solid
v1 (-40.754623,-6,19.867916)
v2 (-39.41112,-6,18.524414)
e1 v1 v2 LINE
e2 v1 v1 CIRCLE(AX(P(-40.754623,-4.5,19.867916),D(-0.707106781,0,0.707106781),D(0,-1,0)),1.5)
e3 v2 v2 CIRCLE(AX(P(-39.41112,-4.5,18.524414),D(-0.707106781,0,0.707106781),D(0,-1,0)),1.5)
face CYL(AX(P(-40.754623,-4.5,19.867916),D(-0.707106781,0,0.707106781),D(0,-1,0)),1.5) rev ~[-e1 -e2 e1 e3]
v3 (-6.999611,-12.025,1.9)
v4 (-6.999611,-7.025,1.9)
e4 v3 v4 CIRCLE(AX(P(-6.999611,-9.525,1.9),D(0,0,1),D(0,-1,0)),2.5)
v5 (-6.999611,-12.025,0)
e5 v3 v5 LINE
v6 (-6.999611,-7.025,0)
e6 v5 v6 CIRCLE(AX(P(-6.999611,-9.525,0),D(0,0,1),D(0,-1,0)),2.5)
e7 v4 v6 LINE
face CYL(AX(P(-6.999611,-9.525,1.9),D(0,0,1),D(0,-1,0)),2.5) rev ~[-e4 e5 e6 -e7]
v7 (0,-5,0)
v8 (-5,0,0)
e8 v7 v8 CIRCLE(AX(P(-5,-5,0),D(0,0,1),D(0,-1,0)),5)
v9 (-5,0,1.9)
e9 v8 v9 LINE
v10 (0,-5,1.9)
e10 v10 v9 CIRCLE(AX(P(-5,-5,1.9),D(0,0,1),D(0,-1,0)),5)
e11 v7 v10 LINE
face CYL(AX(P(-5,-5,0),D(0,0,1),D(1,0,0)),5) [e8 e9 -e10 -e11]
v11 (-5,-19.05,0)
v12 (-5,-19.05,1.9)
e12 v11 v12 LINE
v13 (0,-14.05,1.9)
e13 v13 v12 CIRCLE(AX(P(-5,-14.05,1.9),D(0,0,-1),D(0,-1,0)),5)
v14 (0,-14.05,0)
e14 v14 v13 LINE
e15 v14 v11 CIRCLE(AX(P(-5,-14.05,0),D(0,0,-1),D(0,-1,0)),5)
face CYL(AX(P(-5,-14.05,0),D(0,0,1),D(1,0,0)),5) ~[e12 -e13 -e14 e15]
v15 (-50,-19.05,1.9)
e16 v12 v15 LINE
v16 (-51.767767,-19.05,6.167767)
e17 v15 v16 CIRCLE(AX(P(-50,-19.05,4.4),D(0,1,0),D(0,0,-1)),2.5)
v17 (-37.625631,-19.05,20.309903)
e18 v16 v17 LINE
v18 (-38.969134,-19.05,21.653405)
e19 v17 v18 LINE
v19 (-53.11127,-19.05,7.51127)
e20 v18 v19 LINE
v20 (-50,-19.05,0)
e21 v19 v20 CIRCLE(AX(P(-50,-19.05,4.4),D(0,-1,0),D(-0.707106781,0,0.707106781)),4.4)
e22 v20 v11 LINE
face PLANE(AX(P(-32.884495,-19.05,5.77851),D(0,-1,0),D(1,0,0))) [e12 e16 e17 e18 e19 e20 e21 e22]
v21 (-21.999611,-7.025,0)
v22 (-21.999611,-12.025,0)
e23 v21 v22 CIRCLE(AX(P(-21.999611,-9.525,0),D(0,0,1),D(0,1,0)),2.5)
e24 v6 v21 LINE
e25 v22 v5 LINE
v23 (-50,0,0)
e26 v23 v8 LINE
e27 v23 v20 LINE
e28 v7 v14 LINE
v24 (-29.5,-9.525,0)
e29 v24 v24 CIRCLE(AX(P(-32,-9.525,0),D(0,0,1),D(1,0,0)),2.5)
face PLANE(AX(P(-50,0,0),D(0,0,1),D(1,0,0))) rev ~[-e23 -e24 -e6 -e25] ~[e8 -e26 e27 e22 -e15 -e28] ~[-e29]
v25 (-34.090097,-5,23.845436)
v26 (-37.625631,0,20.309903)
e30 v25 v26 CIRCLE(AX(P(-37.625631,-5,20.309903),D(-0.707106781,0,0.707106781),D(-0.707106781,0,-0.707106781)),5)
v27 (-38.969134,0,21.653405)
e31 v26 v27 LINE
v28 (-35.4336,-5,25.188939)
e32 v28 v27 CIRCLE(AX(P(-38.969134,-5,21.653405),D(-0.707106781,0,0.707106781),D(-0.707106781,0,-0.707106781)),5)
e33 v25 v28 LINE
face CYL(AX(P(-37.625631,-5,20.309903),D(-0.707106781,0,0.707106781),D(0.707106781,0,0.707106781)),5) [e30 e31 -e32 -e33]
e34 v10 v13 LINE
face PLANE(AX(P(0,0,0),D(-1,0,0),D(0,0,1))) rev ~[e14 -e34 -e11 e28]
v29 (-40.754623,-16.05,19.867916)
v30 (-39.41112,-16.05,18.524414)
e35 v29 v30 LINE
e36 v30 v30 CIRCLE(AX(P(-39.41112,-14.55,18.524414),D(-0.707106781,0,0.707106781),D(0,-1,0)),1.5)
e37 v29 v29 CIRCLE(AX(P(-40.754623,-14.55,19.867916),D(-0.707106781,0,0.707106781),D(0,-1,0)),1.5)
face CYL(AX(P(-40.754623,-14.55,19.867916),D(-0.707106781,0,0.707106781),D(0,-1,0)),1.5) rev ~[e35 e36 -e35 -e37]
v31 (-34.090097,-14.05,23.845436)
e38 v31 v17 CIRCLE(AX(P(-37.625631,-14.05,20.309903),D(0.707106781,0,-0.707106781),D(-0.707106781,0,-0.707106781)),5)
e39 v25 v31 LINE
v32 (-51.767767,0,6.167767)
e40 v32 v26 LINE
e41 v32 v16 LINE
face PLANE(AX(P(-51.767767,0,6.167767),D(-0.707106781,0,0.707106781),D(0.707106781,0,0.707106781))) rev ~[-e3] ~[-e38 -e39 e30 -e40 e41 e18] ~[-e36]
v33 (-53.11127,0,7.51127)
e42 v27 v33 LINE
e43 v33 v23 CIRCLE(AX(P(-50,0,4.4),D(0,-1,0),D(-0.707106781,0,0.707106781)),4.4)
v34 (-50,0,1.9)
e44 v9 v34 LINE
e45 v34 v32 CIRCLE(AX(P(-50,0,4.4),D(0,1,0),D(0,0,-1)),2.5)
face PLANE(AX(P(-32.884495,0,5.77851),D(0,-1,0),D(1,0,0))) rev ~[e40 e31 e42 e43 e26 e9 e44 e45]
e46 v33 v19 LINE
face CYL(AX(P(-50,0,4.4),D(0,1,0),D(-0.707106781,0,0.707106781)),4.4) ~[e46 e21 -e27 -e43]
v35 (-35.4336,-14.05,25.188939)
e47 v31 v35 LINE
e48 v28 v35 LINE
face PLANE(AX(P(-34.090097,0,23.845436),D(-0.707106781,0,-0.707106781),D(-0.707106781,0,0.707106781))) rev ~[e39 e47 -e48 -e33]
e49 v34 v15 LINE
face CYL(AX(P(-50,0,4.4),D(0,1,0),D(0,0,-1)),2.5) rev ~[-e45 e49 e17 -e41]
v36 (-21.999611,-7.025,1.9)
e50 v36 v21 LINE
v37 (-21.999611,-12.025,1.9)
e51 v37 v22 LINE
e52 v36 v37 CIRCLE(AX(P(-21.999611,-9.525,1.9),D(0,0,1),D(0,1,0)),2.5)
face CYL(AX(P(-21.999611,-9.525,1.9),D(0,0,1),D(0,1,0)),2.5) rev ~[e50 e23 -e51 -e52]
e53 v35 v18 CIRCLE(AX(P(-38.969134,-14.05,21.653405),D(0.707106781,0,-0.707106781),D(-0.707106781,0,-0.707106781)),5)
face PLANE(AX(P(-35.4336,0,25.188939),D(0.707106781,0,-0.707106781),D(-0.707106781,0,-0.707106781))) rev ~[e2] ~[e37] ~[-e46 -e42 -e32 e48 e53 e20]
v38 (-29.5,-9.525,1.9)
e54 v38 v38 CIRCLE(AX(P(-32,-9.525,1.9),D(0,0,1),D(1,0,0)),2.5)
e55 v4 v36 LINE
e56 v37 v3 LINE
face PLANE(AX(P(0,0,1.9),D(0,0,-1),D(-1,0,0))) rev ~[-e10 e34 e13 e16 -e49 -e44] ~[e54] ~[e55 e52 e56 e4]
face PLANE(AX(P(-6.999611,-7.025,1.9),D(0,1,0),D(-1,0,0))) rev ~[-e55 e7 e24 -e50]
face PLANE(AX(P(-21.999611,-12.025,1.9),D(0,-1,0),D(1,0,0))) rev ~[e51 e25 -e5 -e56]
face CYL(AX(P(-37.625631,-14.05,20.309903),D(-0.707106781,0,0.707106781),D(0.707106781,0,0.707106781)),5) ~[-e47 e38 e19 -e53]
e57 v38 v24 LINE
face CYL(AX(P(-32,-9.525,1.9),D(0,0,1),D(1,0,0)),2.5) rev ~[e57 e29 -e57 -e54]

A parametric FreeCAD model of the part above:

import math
import FreeCAD as App
import Part
import Sketcher
from FreeCAD import Vector
Q = App.Units.Quantity


def edges_at(feature, points):
    """Names of the edges that pass closest to the given points."""
    edges = feature.Shape.Edges
    near = lambda p: min(range(len(edges)), key=lambda i: edges[i].distToShape(Part.Vertex(*p))[0])
    return sorted({f"Edge{near(p) + 1}" for p in points})

doc = App.newDocument("Part")
params = doc.addObject("Spreadsheet::Sheet", "Params")
for row, (alias, value) in enumerate([
    ("sketch1_radius", "2.5 mm"),
    ("sketch1_radius2", "4.4 mm"),
    ("sketch1_width", "50 mm"),
    ("sketch1_length", "25 mm"),
    ("pad1_length", "19.05 mm"),
    ("fillet_radius", "5 mm"),
    ("sketch2_diameter", "3 mm"),
    ("pocket1_length", "1.9 mm"),
    ("sketch3_diameter", "5 mm"),
    ("sketch3_width", "15 mm"),
], start=1):
    params.set(f"A{row}", alias)
    params.set(f"B{row}", "=" + value)
    params.setAlias(f"B{row}", alias)

body = doc.addObject("PartDesign::Body", "Body")

# Sketch on XZ plane
sketch1 = doc.addObject("Sketcher::SketchObject", "Sketch")
body.addObject(sketch1)
sketch1.AttachmentSupport = (doc.XZ_Plane, [""])
sketch1.MapMode = "FlatFace"
sketch1.addGeometry([
    Part.LineSegment(Vector(-50, 0, 0), Vector(0, 0, 0)),  # 0
    Part.LineSegment(Vector(0, 0, 0), Vector(0, 1.9, 0)),  # 1
    Part.LineSegment(Vector(0, 1.9, 0), Vector(-50, 1.9, 0)),  # 2
    Part.ArcOfCircle(Part.Circle(Vector(-50, 4.4, 0), Vector(0, 0, 1), 2.5), math.radians(135), math.radians(270)),  # 3
    Part.LineSegment(Vector(-51.8, 6.2, 0), Vector(-34.1, 23.8, 0)),  # 4
    Part.LineSegment(Vector(-34.1, 23.8, 0), Vector(-35.4, 25.2, 0)),  # 5
    Part.LineSegment(Vector(-35.4, 25.2, 0), Vector(-53.1, 7.5, 0)),  # 6
    Part.ArcOfCircle(Part.Circle(Vector(-50, 4.4, 0), Vector(0, 0, 1), 4.4), math.radians(135), math.radians(270)),  # 7
], False)
sketch1.addConstraint([
    Sketcher.Constraint("Coincident", 0, 2, 1, 1),
    Sketcher.Constraint("Coincident", 1, 2, 2, 1),
    Sketcher.Constraint("Tangent", 2, 2, 3, 2),
    Sketcher.Constraint("Tangent", 3, 1, 4, 1),
    Sketcher.Constraint("Coincident", 4, 2, 5, 1),
    Sketcher.Constraint("Coincident", 5, 2, 6, 1),
    Sketcher.Constraint("Tangent", 6, 2, 7, 1),
    Sketcher.Constraint("Tangent", 7, 2, 0, 1),
    Sketcher.Constraint("Horizontal", 0),
    Sketcher.Constraint("Vertical", 1),
    Sketcher.Constraint("Horizontal", 2),
    Sketcher.Constraint("Coincident", 0, 2, -1, 1),
    Sketcher.Constraint("Coincident", 7, 3, 3, 3),
    Sketcher.Constraint("Perpendicular", 4, 5),
    Sketcher.Constraint("Perpendicular", 5, 6),
    Sketcher.Constraint("Radius", 3, 2.5),
    Sketcher.Constraint("Radius", 7, 4.4),
    Sketcher.Constraint("DistanceX", 0, 1, 0, 2, 50.0),
    Sketcher.Constraint("Angle", 4, Q("45 deg")),
    Sketcher.Constraint("Distance", 4, 25.0),
])
sketch1.setExpression("Constraints[15]", "Params.sketch1_radius")
sketch1.setExpression("Constraints[16]", "Params.sketch1_radius2")
sketch1.setExpression("Constraints[17]", "Params.sketch1_width")
sketch1.setExpression("Constraints[19]", "Params.sketch1_length")
pad1 = doc.addObject("PartDesign::Pad", "Pad")
body.addObject(pad1)
pad1.Profile = sketch1
pad1.setExpression("Length", "Params.pad1_length")
doc.recompute()

fillet = doc.addObject("PartDesign::Fillet", "Fillet")
body.addObject(fillet)
fillet.Base = (pad1, edges_at(pad1, [
    (-34.762, -19.05, 24.517),
    (-34.762, 0, 24.517),
    (0, 0, 0.95),
    (0, -19.05, 0.95),
]))
fillet.setExpression("Radius", "Params.fillet_radius")

# Sketch on an angled plane
sketch2 = doc.addObject("Sketcher::SketchObject", "Sketch001")
body.addObject(sketch2)
sketch2.Placement = App.Placement(Vector(-30.31127, 0, 30.31127), App.Rotation(Vector(0, -1, 0), Vector(0.707106781, 0, 0.707106781), Vector(-0.707106781, 0, 0.707106781), "ZXY"))
sketch2.addGeometry([
    Part.Circle(Vector(14.6, -14.8, 0), Vector(0, 0, 1), 1.5),
    Part.Circle(Vector(4.5, -14.8, 0), Vector(0, 0, 1), 1.5),
], False)
sketch2.addConstraint([
    Sketcher.Constraint("Equal", 0, 1),
    Sketcher.Constraint("Horizontal", 0, 3, 1, 3),
    Sketcher.Constraint("Diameter", 0, 3.0),
    Sketcher.Constraint("DistanceX", -1, 1, 1, 3, 4.5),
    Sketcher.Constraint("DistanceX", -1, 1, 0, 3, 14.55),
    Sketcher.Constraint("DistanceY", 0, 3, -1, 1, 14.769132),
])
sketch2.setExpression("Constraints[2]", "Params.sketch2_diameter")
pocket1 = doc.addObject("PartDesign::Pocket", "Pocket")
body.addObject(pocket1)
pocket1.Profile = sketch2
pocket1.setExpression("Length", "Params.pocket1_length")

# Sketch on XY plane
sketch3 = doc.addObject("Sketcher::SketchObject", "Sketch002")
body.addObject(sketch3)
sketch3.AttachmentSupport = (doc.XY_Plane, [""])
sketch3.MapMode = "FlatFace"
sketch3.AttachmentOffset = App.Placement(Vector(0, 0, 1.9), App.Rotation())
sketch3.addGeometry([
    Part.ArcOfCircle(Part.Circle(Vector(-7, -9.5, 0), Vector(0, 0, 1), 2.5), math.radians(-90), math.radians(90)),  # 0
    Part.LineSegment(Vector(-7, -7, 0), Vector(-22, -7, 0)),  # 1
    Part.ArcOfCircle(Part.Circle(Vector(-22, -9.5, 0), Vector(0, 0, 1), 2.5), math.radians(90), math.radians(270)),  # 2
    Part.LineSegment(Vector(-22, -12, 0), Vector(-7, -12, 0)),  # 3
    Part.Circle(Vector(-32, -9.5, 0), Vector(0, 0, 1), 2.5),  # 4
], False)
sketch3.addConstraint([
    Sketcher.Constraint("Tangent", 0, 2, 1, 1),
    Sketcher.Constraint("Tangent", 1, 2, 2, 1),
    Sketcher.Constraint("Tangent", 2, 2, 3, 1),
    Sketcher.Constraint("Tangent", 3, 2, 0, 1),
    Sketcher.Constraint("Horizontal", 1),
    Sketcher.Constraint("Horizontal", 3),
    Sketcher.Constraint("Equal", 2, 4),
    Sketcher.Constraint("Horizontal", 2, 3, 4, 3),
    Sketcher.Constraint("Diameter", 4, 5.0),
    Sketcher.Constraint("DistanceX", 1, 2, 1, 1, 15.0),
    Sketcher.Constraint("DistanceX", 4, 3, -1, 1, 32.0),
    Sketcher.Constraint("DistanceY", 0, 3, -1, 1, 9.525),
    Sketcher.Constraint("DistanceX", 0, 3, -1, 1, 6.999611),
])
sketch3.setExpression("Constraints[8]", "Params.sketch3_diameter")
sketch3.setExpression("Constraints[9]", "Params.sketch3_width")
pocket2 = doc.addObject("PartDesign::Pocket", "Pocket001")
body.addObject(pocket2)
pocket2.Profile = sketch3
pocket2.Type = "ThroughAll"

doc.recompute()
